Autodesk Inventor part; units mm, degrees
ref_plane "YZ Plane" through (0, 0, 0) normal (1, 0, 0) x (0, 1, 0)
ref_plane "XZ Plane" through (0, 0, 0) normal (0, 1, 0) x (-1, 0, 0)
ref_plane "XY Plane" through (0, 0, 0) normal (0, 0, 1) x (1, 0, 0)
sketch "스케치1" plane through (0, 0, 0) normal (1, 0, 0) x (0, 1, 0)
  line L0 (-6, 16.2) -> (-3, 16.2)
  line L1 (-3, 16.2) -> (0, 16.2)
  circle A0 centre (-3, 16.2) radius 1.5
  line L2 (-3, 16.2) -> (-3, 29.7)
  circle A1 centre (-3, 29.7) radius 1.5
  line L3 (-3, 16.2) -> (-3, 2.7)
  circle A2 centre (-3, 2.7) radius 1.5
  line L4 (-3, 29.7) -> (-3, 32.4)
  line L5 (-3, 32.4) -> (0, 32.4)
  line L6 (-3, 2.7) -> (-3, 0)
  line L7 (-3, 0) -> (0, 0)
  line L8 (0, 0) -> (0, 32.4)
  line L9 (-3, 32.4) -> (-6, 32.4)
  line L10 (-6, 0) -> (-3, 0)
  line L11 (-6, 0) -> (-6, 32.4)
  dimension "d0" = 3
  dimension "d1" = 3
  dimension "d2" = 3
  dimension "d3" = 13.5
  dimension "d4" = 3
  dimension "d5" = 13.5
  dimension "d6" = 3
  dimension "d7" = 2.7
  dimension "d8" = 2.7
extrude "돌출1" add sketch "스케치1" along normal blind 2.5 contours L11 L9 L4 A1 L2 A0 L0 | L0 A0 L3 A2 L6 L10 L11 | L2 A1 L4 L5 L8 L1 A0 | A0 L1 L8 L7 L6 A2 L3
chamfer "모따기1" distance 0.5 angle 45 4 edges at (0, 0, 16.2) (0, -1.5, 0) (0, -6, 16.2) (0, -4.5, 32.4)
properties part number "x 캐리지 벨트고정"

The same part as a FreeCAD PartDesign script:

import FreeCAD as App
import Part
import Sketcher


def edges_at(feature, points):
    """Names of the edges that pass closest to the given points."""
    edges = feature.Shape.Edges
    near = lambda p: min(range(len(edges)), key=lambda i: edges[i].distToShape(Part.Vertex(*p))[0])
    return sorted({f"Edge{near(p) + 1}" for p in points})


def add_polygon(sketch, points):
    """Adds a closed chain of lines whose ends are joined by coincident constraints."""
    first, n = sketch.GeometryCount, len(points)
    for a, b in zip(points, points[1:] + points[:1]):
        sketch.addGeometry(Part.LineSegment(App.Vector(*a, 0), App.Vector(*b, 0)), False)
    for i in range(n):
        sketch.addConstraint(Sketcher.Constraint("Coincident", first + i, 2, first + (i + 1) % n, 1))

doc = App.newDocument("Part")
params = doc.addObject("Spreadsheet::Sheet", "Params")
for row, (alias, value) in enumerate([
    ("sketch1_diameter", "3 mm"),
    ("pad1_length", "2.5 mm"),
    ("chamfer_size", "0.5 mm"),
], start=1):
    params.set(f"A{row}", alias)
    params.set(f"B{row}", "=" + value)
    params.setAlias(f"B{row}", alias)

body = doc.addObject("PartDesign::Body", "Body")

# Sketch on YZ plane
sketch1 = doc.addObject("Sketcher::SketchObject", "Sketch")
body.addObject(sketch1)
sketch1.AttachmentSupport = (doc.YZ_Plane, [""])
sketch1.MapMode = "FlatFace"
add_polygon(sketch1, [(-6, 32.4), (-6, 0), (0, 0), (0, 32.4)])  # lines 0-3
sketch1.addGeometry(Part.Circle(App.Vector(-3, 29.7, 0), App.Vector(0, 0, 1), 1.5), False)  # 4
sketch1.addGeometry(Part.Circle(App.Vector(-3, 16.2, 0), App.Vector(0, 0, 1), 1.5), False)  # 5
sketch1.addGeometry(Part.Circle(App.Vector(-3, 2.7, 0), App.Vector(0, 0, 1), 1.5), False)  # 6
sketch1.addConstraint(Sketcher.Constraint("Vertical", 0))
sketch1.addConstraint(Sketcher.Constraint("Horizontal", 1))
sketch1.addConstraint(Sketcher.Constraint("Vertical", 2))
sketch1.addConstraint(Sketcher.Constraint("Horizontal", 3))
sketch1.addConstraint(Sketcher.Constraint("Coincident", 1, 2, -1, 1))
sketch1.addConstraint(Sketcher.Constraint("Equal", 4, 5))
sketch1.addConstraint(Sketcher.Constraint("Equal", 5, 6))
sketch1.addConstraint(Sketcher.Constraint("Vertical", 4, 3, 5, 3))
sketch1.addConstraint(Sketcher.Constraint("Vertical", 5, 3, 6, 3))
sketch1.addConstraint(Sketcher.Constraint("Diameter", 4, 3.0))
sketch1.addConstraint(Sketcher.Constraint("DistanceX", 4, 3, -1, 1, 3.0))
sketch1.addConstraint(Sketcher.Constraint("DistanceX", 0, 2, 6, 3, 3.0))
sketch1.addConstraint(Sketcher.Constraint("DistanceY", -1, 1, 6, 3, 2.7))
sketch1.addConstraint(Sketcher.Constraint("DistanceY", 5, 3, 4, 3, 13.5))
sketch1.addConstraint(Sketcher.Constraint("DistanceY", 6, 3, 5, 3, 13.5))
sketch1.addConstraint(Sketcher.Constraint("DistanceY", 4, 3, 2, 2, 2.7))
sketch1.setExpression("Constraints[13]", "Params.sketch1_diameter")
pad1 = doc.addObject("PartDesign::Pad", "Pad")
body.addObject(pad1)
pad1.Profile = sketch1
pad1.setExpression("Length", "Params.pad1_length")
doc.recompute()

chamfer = doc.addObject("PartDesign::Chamfer", "Chamfer")
body.addObject(chamfer)
chamfer.Base = (pad1, edges_at(pad1, [
    (0, 0, 16.2),
    (0, -1.5, 0),
    (0, -6, 16.2),
    (0, -4.5, 32.4),
]))
chamfer.setExpression("Size", "Params.chamfer_size")

doc.recompute()
